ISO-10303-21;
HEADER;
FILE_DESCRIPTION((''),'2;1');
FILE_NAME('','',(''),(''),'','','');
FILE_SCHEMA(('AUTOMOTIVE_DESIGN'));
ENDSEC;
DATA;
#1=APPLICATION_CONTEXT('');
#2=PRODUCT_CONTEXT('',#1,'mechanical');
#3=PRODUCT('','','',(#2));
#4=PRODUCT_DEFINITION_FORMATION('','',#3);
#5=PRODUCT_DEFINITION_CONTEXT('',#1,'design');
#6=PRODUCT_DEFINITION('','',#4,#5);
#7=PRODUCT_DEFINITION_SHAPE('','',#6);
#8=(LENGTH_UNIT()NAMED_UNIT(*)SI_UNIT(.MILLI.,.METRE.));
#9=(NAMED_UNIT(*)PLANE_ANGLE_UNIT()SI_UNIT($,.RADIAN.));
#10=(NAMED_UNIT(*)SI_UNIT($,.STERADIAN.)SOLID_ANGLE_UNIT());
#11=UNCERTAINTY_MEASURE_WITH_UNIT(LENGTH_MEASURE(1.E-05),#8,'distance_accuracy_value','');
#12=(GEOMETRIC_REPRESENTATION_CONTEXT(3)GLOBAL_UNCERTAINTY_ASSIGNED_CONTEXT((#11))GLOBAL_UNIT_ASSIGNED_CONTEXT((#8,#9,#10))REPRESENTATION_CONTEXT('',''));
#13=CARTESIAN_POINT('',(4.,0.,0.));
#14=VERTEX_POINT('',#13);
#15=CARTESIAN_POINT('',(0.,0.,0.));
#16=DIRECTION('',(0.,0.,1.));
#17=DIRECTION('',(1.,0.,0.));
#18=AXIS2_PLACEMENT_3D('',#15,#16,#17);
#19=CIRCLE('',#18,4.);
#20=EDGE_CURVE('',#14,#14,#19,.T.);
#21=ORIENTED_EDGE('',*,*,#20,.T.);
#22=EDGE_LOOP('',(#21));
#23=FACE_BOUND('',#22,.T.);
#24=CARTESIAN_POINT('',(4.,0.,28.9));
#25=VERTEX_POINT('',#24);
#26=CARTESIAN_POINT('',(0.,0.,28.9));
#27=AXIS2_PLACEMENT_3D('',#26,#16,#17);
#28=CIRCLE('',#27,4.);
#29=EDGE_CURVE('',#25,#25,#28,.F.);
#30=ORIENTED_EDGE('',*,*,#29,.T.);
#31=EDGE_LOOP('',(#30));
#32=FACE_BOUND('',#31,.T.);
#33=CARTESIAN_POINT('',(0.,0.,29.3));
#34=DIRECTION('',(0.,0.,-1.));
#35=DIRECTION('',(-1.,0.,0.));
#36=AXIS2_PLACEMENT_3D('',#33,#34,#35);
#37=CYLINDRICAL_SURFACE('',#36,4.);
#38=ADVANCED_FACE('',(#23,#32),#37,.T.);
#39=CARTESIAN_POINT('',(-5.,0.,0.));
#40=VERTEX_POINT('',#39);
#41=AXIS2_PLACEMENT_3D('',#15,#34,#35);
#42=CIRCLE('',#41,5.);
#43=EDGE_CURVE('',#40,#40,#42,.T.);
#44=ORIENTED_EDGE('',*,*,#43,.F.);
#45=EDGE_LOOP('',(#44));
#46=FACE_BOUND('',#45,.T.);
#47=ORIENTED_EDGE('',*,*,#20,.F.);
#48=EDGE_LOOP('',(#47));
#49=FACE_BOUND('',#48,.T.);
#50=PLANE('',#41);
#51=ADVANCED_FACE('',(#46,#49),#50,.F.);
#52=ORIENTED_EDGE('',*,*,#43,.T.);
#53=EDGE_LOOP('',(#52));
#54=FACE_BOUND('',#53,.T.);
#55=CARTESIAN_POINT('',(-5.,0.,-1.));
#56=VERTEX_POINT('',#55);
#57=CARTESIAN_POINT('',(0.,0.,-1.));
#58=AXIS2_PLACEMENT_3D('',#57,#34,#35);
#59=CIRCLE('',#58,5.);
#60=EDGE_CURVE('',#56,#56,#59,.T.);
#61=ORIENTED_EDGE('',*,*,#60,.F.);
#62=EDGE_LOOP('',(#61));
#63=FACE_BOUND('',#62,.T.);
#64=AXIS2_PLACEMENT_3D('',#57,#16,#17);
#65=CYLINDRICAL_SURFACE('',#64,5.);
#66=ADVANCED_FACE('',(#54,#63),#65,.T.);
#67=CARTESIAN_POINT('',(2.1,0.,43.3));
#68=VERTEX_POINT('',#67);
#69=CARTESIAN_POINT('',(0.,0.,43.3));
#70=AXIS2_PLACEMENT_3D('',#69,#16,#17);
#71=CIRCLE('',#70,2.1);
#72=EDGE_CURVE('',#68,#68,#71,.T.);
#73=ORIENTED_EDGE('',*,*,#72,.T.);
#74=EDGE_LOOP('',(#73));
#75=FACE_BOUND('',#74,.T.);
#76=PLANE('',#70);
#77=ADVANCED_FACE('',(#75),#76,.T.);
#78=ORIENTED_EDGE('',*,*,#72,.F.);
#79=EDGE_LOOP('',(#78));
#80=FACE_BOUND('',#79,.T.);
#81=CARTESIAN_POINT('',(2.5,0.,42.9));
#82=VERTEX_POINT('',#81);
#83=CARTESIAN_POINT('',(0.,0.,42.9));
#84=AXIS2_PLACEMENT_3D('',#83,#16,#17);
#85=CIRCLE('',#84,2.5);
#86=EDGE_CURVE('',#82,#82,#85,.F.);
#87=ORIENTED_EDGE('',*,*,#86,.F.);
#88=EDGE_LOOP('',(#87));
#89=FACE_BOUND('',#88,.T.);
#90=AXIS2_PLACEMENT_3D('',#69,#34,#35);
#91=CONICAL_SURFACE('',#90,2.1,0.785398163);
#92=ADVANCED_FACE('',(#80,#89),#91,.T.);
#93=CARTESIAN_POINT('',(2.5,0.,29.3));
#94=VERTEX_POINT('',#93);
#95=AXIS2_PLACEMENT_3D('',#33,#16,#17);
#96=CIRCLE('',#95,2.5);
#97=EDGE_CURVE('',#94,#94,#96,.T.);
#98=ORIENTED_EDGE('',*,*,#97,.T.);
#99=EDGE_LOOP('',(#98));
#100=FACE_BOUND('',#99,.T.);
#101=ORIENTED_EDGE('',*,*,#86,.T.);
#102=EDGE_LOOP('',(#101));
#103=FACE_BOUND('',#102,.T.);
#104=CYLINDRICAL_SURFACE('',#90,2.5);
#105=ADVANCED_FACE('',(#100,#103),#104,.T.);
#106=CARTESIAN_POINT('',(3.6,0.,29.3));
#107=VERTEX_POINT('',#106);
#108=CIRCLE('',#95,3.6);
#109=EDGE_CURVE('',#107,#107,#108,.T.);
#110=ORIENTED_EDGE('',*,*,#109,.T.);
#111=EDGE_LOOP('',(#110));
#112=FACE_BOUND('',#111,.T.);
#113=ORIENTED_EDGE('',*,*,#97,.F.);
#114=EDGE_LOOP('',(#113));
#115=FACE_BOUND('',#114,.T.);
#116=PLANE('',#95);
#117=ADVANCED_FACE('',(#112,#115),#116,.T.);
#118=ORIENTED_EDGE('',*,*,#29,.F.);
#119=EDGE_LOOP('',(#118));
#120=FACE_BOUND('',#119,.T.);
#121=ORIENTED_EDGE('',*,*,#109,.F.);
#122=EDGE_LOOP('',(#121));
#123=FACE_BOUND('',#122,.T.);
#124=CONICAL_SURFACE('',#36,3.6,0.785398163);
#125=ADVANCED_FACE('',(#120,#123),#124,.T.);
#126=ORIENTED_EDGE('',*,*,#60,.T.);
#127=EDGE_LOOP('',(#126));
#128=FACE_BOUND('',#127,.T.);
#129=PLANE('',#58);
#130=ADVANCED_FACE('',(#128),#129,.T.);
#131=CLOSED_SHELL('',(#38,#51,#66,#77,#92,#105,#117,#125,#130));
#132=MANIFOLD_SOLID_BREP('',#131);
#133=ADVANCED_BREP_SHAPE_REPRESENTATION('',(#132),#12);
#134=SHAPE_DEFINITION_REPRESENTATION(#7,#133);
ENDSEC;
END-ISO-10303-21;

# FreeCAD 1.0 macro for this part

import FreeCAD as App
import Part
import Sketcher
Q = App.Units.Quantity


def edges_at(feature, points):
    """Names of the edges that pass closest to the given points."""
    edges = feature.Shape.Edges
    near = lambda p: min(range(len(edges)), key=lambda i: edges[i].distToShape(Part.Vertex(*p))[0])
    return sorted({f"Edge{near(p) + 1}" for p in points})

doc = App.newDocument("Part")
body = doc.addObject("PartDesign::Body", "Body")

sketch1 = body.newObject("Sketcher::SketchObject", "Sketch")
sketch1.AttachmentSupport = (doc.getObject("XY_Plane"), [""])
sketch1.MapMode = "FlatFace"
sketch1.addGeometry(Part.Circle(App.Vector(0, 0, 0), App.Vector(0, 0, 1), 4), False)
sketch1.addConstraint(Sketcher.Constraint("Coincident", 0, 3, -1, 1))
sketch1.addConstraint(Sketcher.Constraint("Diameter", 0, Q("8 mm")))
pad1 = body.newObject("PartDesign::Pad", "Pad")
pad1.Profile = sketch1
pad1.Length = 29.3

sketch2 = body.newObject("Sketcher::SketchObject", "Sketch001")
sketch2.AttachmentSupport = (doc.getObject("XY_Plane"), [""])
sketch2.MapMode = "FlatFace"
sketch2.AttachmentOffset = App.Placement(App.Vector(0, 0, 29.3), App.Rotation())
sketch2.addGeometry(Part.Circle(App.Vector(0, 0, 0), App.Vector(0, 0, 1), 2.5), False)
sketch2.addConstraint(Sketcher.Constraint("Coincident", 0, 3, -1, 1))
sketch2.addConstraint(Sketcher.Constraint("Diameter", 0, Q("5 mm")))
pad2 = body.newObject("PartDesign::Pad", "Pad001")
pad2.Profile = sketch2
pad2.Length = 14

sketch3 = body.newObject("Sketcher::SketchObject", "Sketch002")
sketch3.AttachmentSupport = (doc.getObject("XY_Plane"), [""])
sketch3.MapMode = "FlatFace"
sketch3.addGeometry(Part.Circle(App.Vector(0, 0, 0), App.Vector(0, 0, 1), 5), False)
sketch3.addConstraint(Sketcher.Constraint("Coincident", 0, 3, -1, 1))
sketch3.addConstraint(Sketcher.Constraint("Diameter", 0, Q("10 mm")))
pad3 = body.newObject("PartDesign::Pad", "Pad002")
pad3.Profile = sketch3
pad3.Length = 1
pad3.Reversed = True
doc.recompute()

chamfer = body.newObject("PartDesign::Chamfer", "Chamfer")
chamfer.Base = (pad3, edges_at(pad3, [(-4, 0, 29.3), (-2.5, 0, 43.3)]))
chamfer.Size = 0.4

doc.recompute()
